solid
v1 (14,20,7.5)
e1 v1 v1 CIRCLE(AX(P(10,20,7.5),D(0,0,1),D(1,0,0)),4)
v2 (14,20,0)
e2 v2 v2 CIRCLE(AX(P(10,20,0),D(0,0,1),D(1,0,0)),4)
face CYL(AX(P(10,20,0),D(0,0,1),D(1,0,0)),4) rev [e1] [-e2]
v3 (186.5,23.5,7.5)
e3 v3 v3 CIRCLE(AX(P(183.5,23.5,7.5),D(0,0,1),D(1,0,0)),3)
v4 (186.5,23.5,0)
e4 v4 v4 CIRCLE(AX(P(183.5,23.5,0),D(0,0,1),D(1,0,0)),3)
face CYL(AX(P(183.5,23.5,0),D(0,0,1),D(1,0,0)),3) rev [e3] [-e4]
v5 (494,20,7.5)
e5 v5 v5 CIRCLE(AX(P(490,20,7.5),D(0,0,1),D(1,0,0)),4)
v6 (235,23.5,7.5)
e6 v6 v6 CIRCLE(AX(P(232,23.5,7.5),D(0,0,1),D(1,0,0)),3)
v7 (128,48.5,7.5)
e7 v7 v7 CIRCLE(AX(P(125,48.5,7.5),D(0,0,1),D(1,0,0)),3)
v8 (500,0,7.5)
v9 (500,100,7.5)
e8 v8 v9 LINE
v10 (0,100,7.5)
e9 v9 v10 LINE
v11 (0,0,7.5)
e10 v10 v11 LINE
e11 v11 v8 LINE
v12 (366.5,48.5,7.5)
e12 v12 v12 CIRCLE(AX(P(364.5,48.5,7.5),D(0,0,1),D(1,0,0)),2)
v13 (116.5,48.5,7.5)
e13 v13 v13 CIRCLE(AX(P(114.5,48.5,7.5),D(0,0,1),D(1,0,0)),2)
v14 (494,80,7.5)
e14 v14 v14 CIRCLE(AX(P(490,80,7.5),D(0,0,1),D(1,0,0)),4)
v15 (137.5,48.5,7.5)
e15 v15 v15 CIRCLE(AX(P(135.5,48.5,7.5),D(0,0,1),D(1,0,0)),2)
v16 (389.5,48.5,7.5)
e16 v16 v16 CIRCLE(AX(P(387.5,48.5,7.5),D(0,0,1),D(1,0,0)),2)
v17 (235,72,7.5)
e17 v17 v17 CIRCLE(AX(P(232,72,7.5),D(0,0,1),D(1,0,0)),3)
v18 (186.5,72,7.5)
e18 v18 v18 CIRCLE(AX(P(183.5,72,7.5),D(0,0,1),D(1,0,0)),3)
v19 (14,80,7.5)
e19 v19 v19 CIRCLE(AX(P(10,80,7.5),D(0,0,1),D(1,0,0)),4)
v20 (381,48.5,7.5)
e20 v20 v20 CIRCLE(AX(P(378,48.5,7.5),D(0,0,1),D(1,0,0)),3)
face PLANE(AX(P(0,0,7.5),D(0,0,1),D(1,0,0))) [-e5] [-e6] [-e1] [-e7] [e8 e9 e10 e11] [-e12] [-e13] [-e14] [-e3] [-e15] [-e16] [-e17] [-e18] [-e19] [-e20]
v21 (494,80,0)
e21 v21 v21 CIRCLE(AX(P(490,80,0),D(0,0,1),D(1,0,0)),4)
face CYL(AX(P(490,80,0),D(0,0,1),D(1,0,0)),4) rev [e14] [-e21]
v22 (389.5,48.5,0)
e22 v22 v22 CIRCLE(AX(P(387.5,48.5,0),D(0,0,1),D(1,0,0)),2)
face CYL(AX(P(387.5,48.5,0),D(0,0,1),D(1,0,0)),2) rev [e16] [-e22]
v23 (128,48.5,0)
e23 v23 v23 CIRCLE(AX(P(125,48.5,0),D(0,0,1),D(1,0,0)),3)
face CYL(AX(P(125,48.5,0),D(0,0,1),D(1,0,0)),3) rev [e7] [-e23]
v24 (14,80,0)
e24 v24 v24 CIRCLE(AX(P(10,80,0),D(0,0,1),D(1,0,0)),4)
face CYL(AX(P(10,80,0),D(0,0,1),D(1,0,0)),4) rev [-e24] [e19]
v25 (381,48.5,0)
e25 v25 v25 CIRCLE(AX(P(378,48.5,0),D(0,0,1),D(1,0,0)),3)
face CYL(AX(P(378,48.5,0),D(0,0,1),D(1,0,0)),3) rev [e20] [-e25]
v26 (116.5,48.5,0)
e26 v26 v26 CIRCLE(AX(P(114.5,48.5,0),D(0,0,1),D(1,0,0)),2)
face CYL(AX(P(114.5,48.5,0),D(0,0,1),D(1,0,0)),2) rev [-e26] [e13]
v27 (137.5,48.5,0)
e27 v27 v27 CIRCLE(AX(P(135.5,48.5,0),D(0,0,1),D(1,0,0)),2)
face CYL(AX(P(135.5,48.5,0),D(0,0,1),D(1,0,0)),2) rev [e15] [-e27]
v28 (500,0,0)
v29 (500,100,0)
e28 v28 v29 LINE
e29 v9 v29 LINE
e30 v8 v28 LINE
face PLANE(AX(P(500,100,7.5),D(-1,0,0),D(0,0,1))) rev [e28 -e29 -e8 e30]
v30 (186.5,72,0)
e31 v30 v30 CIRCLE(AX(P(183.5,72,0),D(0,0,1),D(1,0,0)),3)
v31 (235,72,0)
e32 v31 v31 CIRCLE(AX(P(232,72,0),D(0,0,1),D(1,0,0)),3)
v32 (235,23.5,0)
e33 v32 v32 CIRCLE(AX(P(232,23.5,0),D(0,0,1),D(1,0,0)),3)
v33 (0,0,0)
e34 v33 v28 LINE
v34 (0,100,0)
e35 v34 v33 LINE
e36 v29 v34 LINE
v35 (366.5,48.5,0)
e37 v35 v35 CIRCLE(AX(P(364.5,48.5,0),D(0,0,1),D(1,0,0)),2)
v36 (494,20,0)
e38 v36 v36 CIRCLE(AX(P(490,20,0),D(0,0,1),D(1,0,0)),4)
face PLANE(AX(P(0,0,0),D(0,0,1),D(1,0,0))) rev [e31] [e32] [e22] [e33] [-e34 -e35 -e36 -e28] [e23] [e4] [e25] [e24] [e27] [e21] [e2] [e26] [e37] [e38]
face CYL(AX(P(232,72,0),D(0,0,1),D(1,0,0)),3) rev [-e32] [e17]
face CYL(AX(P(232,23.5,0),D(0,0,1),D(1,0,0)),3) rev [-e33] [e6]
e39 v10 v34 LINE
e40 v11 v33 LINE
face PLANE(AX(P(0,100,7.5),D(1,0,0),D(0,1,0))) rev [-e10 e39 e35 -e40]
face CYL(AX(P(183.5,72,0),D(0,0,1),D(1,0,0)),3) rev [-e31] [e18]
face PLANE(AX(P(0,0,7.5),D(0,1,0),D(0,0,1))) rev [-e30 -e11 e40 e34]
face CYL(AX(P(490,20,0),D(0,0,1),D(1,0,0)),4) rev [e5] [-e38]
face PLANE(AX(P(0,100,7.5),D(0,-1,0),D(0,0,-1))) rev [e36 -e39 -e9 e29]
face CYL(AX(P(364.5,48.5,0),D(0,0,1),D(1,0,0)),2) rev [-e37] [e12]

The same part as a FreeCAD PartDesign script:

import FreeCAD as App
import Part
import Sketcher

V = App.Vector
Q = App.Units.Quantity


def add_polygon(sketch, points):
    """Adds a closed chain of lines whose ends are joined by coincident constraints."""
    first, n = sketch.GeometryCount, len(points)
    for a, b in zip(points, points[1:] + points[:1]):
        sketch.addGeometry(Part.LineSegment(App.Vector(*a, 0), App.Vector(*b, 0)), False)
    for i in range(n):
        sketch.addConstraint(Sketcher.Constraint("Coincident", first + i, 2, first + (i + 1) % n, 1))

doc = App.newDocument("Part")
body = doc.addObject("PartDesign::Body", "Body")

sketch1 = body.newObject("Sketcher::SketchObject", "Sketch")
sketch1.AttachmentSupport = (doc.getObject("XY_Plane"), [""])
sketch1.MapMode = "FlatFace"
add_polygon(sketch1, [(0, 100), (0, 0), (500, 0), (500, 100)])
sketch1.addConstraint([
    Sketcher.Constraint("Vertical", 0),
    Sketcher.Constraint("Horizontal", 1),
    Sketcher.Constraint("Vertical", 2),
    Sketcher.Constraint("Horizontal", 3),
    Sketcher.Constraint("Coincident", 0, 2, -1, 1),
    Sketcher.Constraint("DistanceX", 1, 1, 1, 2, Q("500 mm")),
    Sketcher.Constraint("DistanceY", 0, 2, 0, 1, Q("100 mm")),
])
pad1 = body.newObject("PartDesign::Pad", "Pad")
pad1.Profile = sketch1
pad1.Length = 7.5

sketch2 = body.newObject("Sketcher::SketchObject", "Sketch001")
sketch2.AttachmentSupport = (doc.getObject("XY_Plane"), [""])
sketch2.MapMode = "FlatFace"
sketch2.AttachmentOffset = App.Placement(V(0, 0, 7.5), App.Rotation())
sketch2.addGeometry([
    Part.Circle(V(183.5, 23.5, 0), V(0, 0, 1), 3),
    Part.Circle(V(183.5, 72, 0), V(0, 0, 1), 3),
    Part.Circle(V(232, 72, 0), V(0, 0, 1), 3),
    Part.Circle(V(232, 23.5, 0), V(0, 0, 1), 3),
], False)
sketch2.addConstraint([
    Sketcher.Constraint("Equal", 0, 1),
    Sketcher.Constraint("Equal", 1, 2),
    Sketcher.Constraint("Equal", 2, 3),
    Sketcher.Constraint("Horizontal", 1, 3, 2, 3),
    Sketcher.Constraint("Horizontal", 0, 3, 3, 3),
    Sketcher.Constraint("Vertical", 0, 3, 1, 3),
    Sketcher.Constraint("Vertical", 2, 3, 3, 3),
    Sketcher.Constraint("Diameter", 0, Q("6 mm")),
    Sketcher.Constraint("DistanceY", -1, 1, 1, 3, Q("72 mm")),
    Sketcher.Constraint("DistanceX", -1, 1, 2, 3, Q("232 mm")),
    Sketcher.Constraint("DistanceX", -1, 1, 0, 3, Q("183.5 mm")),
    Sketcher.Constraint("DistanceY", -1, 1, 0, 3, Q("23.5 mm")),
])
pocket1 = body.newObject("PartDesign::Pocket", "Pocket")
pocket1.Profile = sketch2
pocket1.Type = "ThroughAll"

sketch3 = body.newObject("Sketcher::SketchObject", "Sketch002")
sketch3.AttachmentSupport = (doc.getObject("XY_Plane"), [""])
sketch3.MapMode = "FlatFace"
sketch3.AttachmentOffset = App.Placement(V(0, 0, 7.5), App.Rotation())
sketch3.addGeometry([
    Part.Circle(V(125, 48.5, 0), V(0, 0, 1), 3),
    Part.Circle(V(135.5, 48.5, 0), V(0, 0, 1), 2),
    Part.Circle(V(114.5, 48.5, 0), V(0, 0, 1), 2),
    Part.Circle(V(378, 48.5, 0), V(0, 0, 1), 3),
    Part.Circle(V(387.5, 48.5, 0), V(0, 0, 1), 2),
    Part.Circle(V(364.5, 48.5, 0), V(0, 0, 1), 2),
], False)
sketch3.addConstraint([
    Sketcher.Constraint("Equal", 1, 2),
    Sketcher.Constraint("Equal", 0, 3),
    Sketcher.Constraint("Equal", 2, 4),
    Sketcher.Constraint("Equal", 4, 5),
    Sketcher.Constraint("Horizontal", 0, 3, 1, 3),
    Sketcher.Constraint("Horizontal", 1, 3, 2, 3),
    Sketcher.Constraint("Horizontal", 2, 3, 3, 3),
    Sketcher.Constraint("Horizontal", 3, 3, 4, 3),
    Sketcher.Constraint("Horizontal", 4, 3, 5, 3),
    Sketcher.Constraint("Diameter", 0, Q("6 mm")),
    Sketcher.Constraint("Diameter", 1, Q("4 mm")),
    Sketcher.Constraint("DistanceX", -1, 1, 0, 3, Q("125 mm")),
    Sketcher.Constraint("DistanceX", -1, 1, 3, 3, Q("378 mm")),
    Sketcher.Constraint("DistanceX", 2, 3, 1, 3, Q("21 mm")),
    Sketcher.Constraint("DistanceX", 1, 3, 4, 3, Q("252 mm")),
    Sketcher.Constraint("DistanceX", 5, 3, 4, 3, Q("23 mm")),
    Sketcher.Constraint("DistanceY", -1, 1, 0, 3, Q("48.5 mm")),
    Sketcher.Constraint("DistanceX", -1, 1, 1, 3, Q("135.5 mm")),
])
pocket2 = body.newObject("PartDesign::Pocket", "Pocket001")
pocket2.Profile = sketch3
pocket2.Type = "ThroughAll"

sketch4 = body.newObject("Sketcher::SketchObject", "Sketch003")
sketch4.AttachmentSupport = (doc.getObject("XY_Plane"), [""])
sketch4.MapMode = "FlatFace"
sketch4.AttachmentOffset = App.Placement(V(0, 0, 7.5), App.Rotation())
sketch4.addGeometry([
    Part.Circle(V(10, 80, 0), V(0, 0, 1), 4),
    Part.Circle(V(10, 20, 0), V(0, 0, 1), 4),
    Part.Circle(V(490, 20, 0), V(0, 0, 1), 4),
    Part.Circle(V(490, 80, 0), V(0, 0, 1), 4),
], False)
sketch4.addConstraint([
    Sketcher.Constraint("Equal", 0, 1),
    Sketcher.Constraint("Equal", 1, 2),
    Sketcher.Constraint("Equal", 2, 3),
    Sketcher.Constraint("Horizontal", 1, 3, 2, 3),
    Sketcher.Constraint("Horizontal", 0, 3, 3, 3),
    Sketcher.Constraint("Vertical", 0, 3, 1, 3),
    Sketcher.Constraint("Vertical", 2, 3, 3, 3),
    Sketcher.Constraint("Diameter", 0, Q("8 mm")),
    Sketcher.Constraint("DistanceX", -1, 1, 0, 3, Q("10 mm")),
    Sketcher.Constraint("DistanceY", -1, 1, 0, 3, Q("80 mm")),
    Sketcher.Constraint("DistanceY", -1, 1, 1, 3, Q("20 mm")),
    Sketcher.Constraint("DistanceX", -1, 1, 2, 3, Q("490 mm")),
])
pocket3 = body.newObject("PartDesign::Pocket", "Pocket002")
pocket3.Profile = sketch4
pocket3.Type = "ThroughAll"

doc.recompute()
